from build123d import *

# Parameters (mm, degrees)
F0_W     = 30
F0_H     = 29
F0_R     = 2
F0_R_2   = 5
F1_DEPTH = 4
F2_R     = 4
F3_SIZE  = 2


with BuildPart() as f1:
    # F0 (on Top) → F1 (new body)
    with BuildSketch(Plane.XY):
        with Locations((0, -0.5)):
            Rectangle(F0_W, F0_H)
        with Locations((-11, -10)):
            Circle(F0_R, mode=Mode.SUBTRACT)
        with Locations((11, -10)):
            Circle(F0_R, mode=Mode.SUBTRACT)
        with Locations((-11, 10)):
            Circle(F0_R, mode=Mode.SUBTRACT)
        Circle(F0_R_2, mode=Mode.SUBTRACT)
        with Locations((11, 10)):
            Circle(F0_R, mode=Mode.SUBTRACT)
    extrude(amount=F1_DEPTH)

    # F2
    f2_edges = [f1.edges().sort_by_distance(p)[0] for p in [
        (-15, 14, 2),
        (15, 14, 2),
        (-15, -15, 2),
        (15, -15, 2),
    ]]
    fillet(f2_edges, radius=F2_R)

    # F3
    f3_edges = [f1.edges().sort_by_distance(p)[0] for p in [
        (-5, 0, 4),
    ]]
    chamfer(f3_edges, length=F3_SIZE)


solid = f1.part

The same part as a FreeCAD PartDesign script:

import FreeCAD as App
import Part
import Sketcher

V = App.Vector


def edges_at(feature, points):
    """Names of the edges that pass closest to the given points."""
    edges = feature.Shape.Edges
    near = lambda p: min(range(len(edges)), key=lambda i: edges[i].distToShape(Part.Vertex(*p))[0])
    return sorted({f"Edge{near(p) + 1}" for p in points})


def add_polygon(sketch, points):
    """Adds a closed chain of lines whose ends are joined by coincident constraints."""
    first, n = sketch.GeometryCount, len(points)
    for a, b in zip(points, points[1:] + points[:1]):
        sketch.addGeometry(Part.LineSegment(App.Vector(*a, 0), App.Vector(*b, 0)), False)
    for i in range(n):
        sketch.addConstraint(Sketcher.Constraint("Coincident", first + i, 2, first + (i + 1) % n, 1))

doc = App.newDocument("Part")
body = doc.addObject("PartDesign::Body", "Body")

# Sketch on XY plane
sketch1 = body.newObject("Sketcher::SketchObject", "Sketch")
sketch1.AttachmentSupport = (doc.getObject("XY_Plane"), [""])
sketch1.MapMode = "FlatFace"
add_polygon(sketch1, [(-15, 14), (-15, -15), (15, -15), (15, 14)])  # lines 0-3
sketch1.addGeometry(Part.Circle(V(-11, -10, 0), V(0, 0, 1), 2), False)  # 4
sketch1.addGeometry(Part.Circle(V(11, -10, 0), V(0, 0, 1), 2), False)  # 5
sketch1.addGeometry(Part.Circle(V(-11, 10, 0), V(0, 0, 1), 2), False)  # 6
sketch1.addGeometry(Part.Circle(V(0, 0, 0), V(0, 0, 1), 5), False)  # 7
sketch1.addGeometry(Part.Circle(V(11, 10, 0), V(0, 0, 1), 2), False)  # 8
sketch1.addConstraint([
    Sketcher.Constraint("Vertical", 0),
    Sketcher.Constraint("Horizontal", 1),
    Sketcher.Constraint("Vertical", 2),
    Sketcher.Constraint("Horizontal", 3),
    Sketcher.Constraint("Coincident", 7, 3, -1, 1),
    Sketcher.Constraint("Equal", 4, 5),
    Sketcher.Constraint("Equal", 5, 6),
    Sketcher.Constraint("Equal", 6, 8),
    Sketcher.Constraint("Symmetric", 5, 3, 6, 3, -1, 1),
    Sketcher.Constraint("Symmetric", 4, 3, 8, 3, -1, 1),
    Sketcher.Constraint("Symmetric", 4, 3, 5, 3, -2),
    Sketcher.Constraint("Diameter", 4, 4.0),
    Sketcher.Constraint("Diameter", 7, 10.0),
    Sketcher.Constraint("DistanceX", 1, 1, 1, 2, 30.0),
    Sketcher.Constraint("DistanceY", 0, 2, 0, 1, 29.0),
    Sketcher.Constraint("DistanceX", 4, 3, -1, 1, 11.0),
    Sketcher.Constraint("DistanceY", 4, 3, -1, 1, 10.0),
    Sketcher.Constraint("DistanceX", 0, 2, -1, 1, 15.0),
    Sketcher.Constraint("DistanceY", 0, 2, -1, 1, 15.0),
])
pad1 = body.newObject("PartDesign::Pad", "Pad")
pad1.Profile = sketch1
pad1.Length = 4
doc.recompute()

fillet = body.newObject("PartDesign::Fillet", "Fillet")
fillet.Base = (pad1, edges_at(pad1, [
    (-15, 14, 2),
    (15, 14, 2),
    (-15, -15, 2),
    (15, -15, 2),
]))
fillet.Radius = 4
doc.recompute()

chamfer = body.newObject("PartDesign::Chamfer", "Chamfer")
chamfer.Base = (fillet, edges_at(fillet, [(-5, 0, 4)]))
chamfer.Size = 2

doc.recompute()
